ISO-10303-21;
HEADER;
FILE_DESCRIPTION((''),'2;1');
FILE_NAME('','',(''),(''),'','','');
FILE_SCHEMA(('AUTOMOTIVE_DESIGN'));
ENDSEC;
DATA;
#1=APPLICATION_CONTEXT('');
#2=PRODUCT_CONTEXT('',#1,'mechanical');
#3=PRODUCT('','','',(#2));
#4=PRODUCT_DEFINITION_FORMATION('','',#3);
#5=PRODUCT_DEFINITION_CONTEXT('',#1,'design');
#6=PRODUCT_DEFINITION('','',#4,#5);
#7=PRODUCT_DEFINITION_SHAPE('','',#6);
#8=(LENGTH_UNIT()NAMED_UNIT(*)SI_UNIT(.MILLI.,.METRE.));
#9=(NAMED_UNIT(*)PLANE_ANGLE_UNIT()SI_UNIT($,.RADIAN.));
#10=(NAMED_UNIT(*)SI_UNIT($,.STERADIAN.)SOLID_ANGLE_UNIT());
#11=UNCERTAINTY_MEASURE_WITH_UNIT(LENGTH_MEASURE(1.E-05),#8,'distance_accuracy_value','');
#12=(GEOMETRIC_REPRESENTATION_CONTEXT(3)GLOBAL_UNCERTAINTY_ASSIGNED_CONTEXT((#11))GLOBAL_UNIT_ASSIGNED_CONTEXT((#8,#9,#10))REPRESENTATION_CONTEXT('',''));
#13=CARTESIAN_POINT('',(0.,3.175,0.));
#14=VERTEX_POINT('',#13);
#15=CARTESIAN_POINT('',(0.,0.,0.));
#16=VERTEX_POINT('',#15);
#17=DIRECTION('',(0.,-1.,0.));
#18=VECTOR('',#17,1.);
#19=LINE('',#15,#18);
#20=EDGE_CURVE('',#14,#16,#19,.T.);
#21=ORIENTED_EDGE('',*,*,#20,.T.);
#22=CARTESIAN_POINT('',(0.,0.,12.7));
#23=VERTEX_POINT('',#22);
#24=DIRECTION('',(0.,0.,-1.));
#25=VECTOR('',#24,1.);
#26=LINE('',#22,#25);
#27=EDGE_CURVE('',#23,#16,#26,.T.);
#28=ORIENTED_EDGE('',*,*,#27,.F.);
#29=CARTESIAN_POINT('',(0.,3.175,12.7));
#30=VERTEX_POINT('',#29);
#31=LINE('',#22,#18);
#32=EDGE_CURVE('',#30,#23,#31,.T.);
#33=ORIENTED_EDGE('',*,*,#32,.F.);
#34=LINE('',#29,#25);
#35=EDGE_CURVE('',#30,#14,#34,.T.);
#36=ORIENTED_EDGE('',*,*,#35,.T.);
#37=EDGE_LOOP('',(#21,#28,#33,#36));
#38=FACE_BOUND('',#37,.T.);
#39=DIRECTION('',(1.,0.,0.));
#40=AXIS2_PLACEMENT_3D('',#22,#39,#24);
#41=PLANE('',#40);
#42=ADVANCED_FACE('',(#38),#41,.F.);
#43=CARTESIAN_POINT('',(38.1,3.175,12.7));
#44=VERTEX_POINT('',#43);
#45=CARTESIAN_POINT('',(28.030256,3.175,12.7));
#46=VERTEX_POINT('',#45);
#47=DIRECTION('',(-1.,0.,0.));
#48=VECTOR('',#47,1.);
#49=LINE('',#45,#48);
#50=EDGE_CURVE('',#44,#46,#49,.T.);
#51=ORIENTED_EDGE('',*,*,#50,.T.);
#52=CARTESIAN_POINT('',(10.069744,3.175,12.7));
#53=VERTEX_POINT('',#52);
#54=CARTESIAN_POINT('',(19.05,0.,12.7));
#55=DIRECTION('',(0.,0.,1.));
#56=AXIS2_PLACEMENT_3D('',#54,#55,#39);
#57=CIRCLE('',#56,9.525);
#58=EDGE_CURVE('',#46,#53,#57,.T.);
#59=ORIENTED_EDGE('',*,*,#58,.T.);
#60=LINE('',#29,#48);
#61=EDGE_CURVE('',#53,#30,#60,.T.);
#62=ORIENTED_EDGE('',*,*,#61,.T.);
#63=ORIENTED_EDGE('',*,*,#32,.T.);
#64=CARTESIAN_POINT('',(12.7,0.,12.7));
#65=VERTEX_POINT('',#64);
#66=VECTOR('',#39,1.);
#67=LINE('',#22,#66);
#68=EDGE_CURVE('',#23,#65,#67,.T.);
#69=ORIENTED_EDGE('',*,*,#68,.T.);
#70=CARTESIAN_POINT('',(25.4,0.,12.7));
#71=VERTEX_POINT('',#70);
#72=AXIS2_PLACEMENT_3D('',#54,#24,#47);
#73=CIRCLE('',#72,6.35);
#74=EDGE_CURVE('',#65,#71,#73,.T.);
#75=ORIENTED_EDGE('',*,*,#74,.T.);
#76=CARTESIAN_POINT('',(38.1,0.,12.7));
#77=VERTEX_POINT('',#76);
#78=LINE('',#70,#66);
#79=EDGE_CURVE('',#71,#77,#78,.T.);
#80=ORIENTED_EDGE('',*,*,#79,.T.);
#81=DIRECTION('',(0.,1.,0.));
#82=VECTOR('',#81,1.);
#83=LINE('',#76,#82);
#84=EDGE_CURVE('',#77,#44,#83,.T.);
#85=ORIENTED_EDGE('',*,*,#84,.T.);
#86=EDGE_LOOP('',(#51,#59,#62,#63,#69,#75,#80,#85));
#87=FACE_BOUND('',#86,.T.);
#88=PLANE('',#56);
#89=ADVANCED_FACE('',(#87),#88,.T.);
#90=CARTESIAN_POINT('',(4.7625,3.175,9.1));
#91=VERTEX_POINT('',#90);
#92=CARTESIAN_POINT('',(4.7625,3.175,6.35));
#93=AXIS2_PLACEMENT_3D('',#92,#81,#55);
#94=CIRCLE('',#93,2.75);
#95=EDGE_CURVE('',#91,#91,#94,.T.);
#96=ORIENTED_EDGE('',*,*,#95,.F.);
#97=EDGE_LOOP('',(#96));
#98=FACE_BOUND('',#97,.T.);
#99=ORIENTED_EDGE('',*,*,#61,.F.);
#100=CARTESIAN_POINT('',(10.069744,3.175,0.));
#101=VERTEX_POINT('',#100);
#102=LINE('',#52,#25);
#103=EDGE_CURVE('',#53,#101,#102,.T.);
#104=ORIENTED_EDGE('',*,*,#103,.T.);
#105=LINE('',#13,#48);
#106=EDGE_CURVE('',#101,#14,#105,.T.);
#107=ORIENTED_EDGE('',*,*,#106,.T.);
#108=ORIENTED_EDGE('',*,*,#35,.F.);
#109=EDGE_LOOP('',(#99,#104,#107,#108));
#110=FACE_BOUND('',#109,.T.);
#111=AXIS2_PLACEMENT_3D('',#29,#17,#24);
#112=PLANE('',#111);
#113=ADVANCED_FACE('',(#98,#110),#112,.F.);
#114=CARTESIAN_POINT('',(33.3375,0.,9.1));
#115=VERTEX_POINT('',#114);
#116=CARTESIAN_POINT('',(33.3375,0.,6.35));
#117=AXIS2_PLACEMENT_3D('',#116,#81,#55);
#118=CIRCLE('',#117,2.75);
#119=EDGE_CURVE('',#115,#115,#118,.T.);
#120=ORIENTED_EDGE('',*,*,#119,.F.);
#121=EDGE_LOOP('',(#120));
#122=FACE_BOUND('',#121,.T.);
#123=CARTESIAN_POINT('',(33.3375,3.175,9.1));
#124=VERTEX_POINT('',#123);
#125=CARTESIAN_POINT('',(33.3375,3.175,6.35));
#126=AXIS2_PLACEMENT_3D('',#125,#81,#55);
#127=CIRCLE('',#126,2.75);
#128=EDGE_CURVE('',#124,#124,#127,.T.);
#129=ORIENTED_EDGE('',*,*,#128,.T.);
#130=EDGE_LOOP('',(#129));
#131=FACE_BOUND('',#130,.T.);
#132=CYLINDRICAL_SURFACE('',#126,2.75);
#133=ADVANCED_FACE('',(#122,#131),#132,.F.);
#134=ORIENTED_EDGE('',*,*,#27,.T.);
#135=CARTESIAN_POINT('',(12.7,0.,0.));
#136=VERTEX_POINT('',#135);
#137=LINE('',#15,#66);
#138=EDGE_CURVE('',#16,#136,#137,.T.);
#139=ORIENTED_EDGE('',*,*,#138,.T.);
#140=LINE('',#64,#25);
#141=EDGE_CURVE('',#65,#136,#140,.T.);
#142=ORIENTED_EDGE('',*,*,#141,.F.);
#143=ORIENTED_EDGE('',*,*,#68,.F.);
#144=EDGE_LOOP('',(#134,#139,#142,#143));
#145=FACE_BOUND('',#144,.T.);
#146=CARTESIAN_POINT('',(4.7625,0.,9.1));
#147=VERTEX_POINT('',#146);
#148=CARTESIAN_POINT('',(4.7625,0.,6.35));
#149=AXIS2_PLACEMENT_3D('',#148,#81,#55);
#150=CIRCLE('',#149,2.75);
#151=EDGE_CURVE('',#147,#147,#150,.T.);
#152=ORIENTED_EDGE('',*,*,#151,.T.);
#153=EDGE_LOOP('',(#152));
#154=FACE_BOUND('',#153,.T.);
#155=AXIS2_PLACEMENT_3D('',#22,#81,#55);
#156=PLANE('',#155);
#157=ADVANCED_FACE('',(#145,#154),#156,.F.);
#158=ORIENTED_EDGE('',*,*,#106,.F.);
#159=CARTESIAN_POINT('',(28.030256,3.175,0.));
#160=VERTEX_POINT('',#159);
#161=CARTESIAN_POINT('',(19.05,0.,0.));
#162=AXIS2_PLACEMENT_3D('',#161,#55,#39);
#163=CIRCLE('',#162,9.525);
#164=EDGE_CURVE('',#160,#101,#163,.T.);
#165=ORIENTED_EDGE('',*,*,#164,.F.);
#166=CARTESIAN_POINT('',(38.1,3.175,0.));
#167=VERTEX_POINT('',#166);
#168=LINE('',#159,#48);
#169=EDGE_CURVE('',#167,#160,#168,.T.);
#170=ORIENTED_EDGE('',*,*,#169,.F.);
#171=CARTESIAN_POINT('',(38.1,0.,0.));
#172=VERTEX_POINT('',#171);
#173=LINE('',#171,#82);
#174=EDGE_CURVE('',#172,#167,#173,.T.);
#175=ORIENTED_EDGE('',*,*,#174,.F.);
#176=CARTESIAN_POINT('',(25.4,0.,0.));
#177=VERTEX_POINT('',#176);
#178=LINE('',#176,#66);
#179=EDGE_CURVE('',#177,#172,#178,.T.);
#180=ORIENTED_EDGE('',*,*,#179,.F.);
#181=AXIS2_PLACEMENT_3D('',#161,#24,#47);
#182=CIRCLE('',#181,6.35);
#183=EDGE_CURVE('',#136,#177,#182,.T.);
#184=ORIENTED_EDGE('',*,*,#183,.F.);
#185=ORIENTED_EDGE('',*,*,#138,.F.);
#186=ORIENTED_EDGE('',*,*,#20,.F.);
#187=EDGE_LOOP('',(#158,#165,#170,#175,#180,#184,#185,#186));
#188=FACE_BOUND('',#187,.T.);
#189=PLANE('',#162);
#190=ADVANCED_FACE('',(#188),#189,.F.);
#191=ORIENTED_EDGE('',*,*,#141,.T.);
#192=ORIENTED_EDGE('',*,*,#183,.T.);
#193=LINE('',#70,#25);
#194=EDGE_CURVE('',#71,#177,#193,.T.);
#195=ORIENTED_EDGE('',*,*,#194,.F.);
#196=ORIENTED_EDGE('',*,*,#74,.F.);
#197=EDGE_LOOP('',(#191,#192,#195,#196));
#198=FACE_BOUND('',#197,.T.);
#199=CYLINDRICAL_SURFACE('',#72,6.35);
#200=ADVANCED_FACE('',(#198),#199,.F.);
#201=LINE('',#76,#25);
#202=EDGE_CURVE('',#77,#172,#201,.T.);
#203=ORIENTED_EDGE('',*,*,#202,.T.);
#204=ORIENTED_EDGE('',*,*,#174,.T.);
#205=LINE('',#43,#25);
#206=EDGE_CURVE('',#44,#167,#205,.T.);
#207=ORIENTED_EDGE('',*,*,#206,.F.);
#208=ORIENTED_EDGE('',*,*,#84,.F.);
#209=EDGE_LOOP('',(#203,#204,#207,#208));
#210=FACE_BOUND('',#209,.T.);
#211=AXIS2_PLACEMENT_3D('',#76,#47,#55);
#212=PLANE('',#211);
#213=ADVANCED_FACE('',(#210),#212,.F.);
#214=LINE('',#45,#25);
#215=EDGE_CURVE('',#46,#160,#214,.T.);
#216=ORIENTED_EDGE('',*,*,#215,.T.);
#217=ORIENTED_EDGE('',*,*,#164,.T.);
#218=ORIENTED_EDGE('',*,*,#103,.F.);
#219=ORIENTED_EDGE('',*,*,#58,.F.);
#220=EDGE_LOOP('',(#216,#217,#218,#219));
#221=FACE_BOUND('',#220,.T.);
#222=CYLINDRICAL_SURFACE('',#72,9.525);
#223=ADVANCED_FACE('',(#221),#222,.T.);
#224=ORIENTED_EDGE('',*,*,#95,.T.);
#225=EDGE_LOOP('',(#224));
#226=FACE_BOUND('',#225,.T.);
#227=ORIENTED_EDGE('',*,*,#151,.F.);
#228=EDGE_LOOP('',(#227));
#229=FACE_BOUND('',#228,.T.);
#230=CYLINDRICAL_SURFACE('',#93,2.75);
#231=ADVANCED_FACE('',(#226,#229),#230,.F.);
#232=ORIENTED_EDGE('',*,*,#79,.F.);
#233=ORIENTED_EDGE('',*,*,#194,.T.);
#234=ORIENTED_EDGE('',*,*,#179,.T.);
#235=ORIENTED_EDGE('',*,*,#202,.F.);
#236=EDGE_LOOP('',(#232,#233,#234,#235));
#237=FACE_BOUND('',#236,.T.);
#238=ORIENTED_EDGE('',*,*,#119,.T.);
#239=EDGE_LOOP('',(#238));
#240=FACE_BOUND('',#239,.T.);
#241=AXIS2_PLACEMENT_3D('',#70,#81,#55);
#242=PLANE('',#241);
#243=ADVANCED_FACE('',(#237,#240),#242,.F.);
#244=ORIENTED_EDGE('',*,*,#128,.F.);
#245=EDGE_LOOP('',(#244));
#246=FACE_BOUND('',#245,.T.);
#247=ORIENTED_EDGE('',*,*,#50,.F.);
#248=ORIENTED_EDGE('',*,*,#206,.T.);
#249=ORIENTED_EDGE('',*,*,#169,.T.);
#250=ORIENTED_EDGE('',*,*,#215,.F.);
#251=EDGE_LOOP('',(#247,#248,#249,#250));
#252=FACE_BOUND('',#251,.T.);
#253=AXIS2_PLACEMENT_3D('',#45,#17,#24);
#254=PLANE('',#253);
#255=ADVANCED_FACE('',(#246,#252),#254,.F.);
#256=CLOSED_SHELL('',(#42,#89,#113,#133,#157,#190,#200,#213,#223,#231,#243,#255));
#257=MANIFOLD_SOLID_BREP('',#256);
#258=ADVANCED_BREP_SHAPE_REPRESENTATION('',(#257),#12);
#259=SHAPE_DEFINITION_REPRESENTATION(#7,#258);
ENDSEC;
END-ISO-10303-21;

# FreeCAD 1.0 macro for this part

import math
import FreeCAD as App
import Part
import Sketcher
Q = App.Units.Quantity

doc = App.newDocument("Part")
body = doc.addObject("PartDesign::Body", "Body")

sketch1 = body.newObject("Sketcher::SketchObject", "Sketch")
sketch1.AttachmentSupport = (doc.getObject("XY_Plane"), [""])
sketch1.MapMode = "FlatFace"
sketch1.addGeometry([
    Part.LineSegment(App.Vector(25.4, 0, 0), App.Vector(38.1, 0, 0)),
    Part.LineSegment(App.Vector(38.1, 0, 0), App.Vector(38.1, 3.2, 0)),
    Part.LineSegment(App.Vector(38.1, 3.2, 0), App.Vector(28, 3.2, 0)),
    Part.ArcOfCircle(Part.Circle(App.Vector(19.1, 0, 0), App.Vector(0, 0, 1), 9.5), math.radians(19), math.radians(161)),
    Part.LineSegment(App.Vector(10.1, 3.2, 0), App.Vector(0, 3.2, 0)),
    Part.LineSegment(App.Vector(0, 3.2, 0), App.Vector(0, 0, 0)),
    Part.LineSegment(App.Vector(0, 0, 0), App.Vector(12.7, 0, 0)),
    Part.ArcOfCircle(Part.Circle(App.Vector(19.1, 0, 0), App.Vector(0, 0, 1), 6.3), math.radians(0), math.radians(180)),
], False)
sketch1.addConstraint([
    Sketcher.Constraint("Coincident", 0, 2, 1, 1),
    Sketcher.Constraint("Coincident", 1, 2, 2, 1),
    Sketcher.Constraint("Coincident", 2, 2, 3, 1),
    Sketcher.Constraint("Coincident", 3, 2, 4, 1),
    Sketcher.Constraint("Coincident", 4, 2, 5, 1),
    Sketcher.Constraint("Coincident", 5, 2, 6, 1),
    Sketcher.Constraint("Coincident", 6, 2, 7, 2),
    Sketcher.Constraint("Coincident", 7, 1, 0, 1),
    Sketcher.Constraint("Horizontal", 0),
    Sketcher.Constraint("Vertical", 1),
    Sketcher.Constraint("Horizontal", 2),
    Sketcher.Constraint("Horizontal", 4),
    Sketcher.Constraint("Vertical", 5),
    Sketcher.Constraint("Horizontal", 6),
    Sketcher.Constraint("Coincident", 5, 2, -1, 1),
    Sketcher.Constraint("Coincident", 7, 3, 3, 3),
    Sketcher.Constraint("PointOnObject", 3, 3, -1),
    Sketcher.Constraint("PointOnObject", 0, 2, -1),
    Sketcher.Constraint("Horizontal", 2, 2, 3, 2),
    Sketcher.Constraint("Equal", 2, 4),
    Sketcher.Constraint("Radius", 7, Q("0.25 in")),
    Sketcher.Constraint("DistanceX", 0, 1, 0, 2, Q("0.5 in")),
    Sketcher.Constraint("Radius", 3, Q("0.375 in")),
    Sketcher.Constraint("DistanceY", 1, 1, 1, 2, Q("0.125 in")),
])
pad1 = body.newObject("PartDesign::Pad", "Pad")
pad1.Profile = sketch1
pad1.Length = Q("0.5 in")

sketch2 = body.newObject("Sketcher::SketchObject", "Sketch001")
sketch2.AttachmentSupport = (doc.getObject("XZ_Plane"), [""])
sketch2.MapMode = "FlatFace"
sketch2.AttachmentOffset = App.Placement(App.Vector(0, 0, -0.125 * 25.4), App.Rotation())
sketch2.addGeometry([
    Part.Circle(App.Vector(4.8, 6.3, 0), App.Vector(0, 0, 1), 2.8),
    Part.Circle(App.Vector(33.3, 6.3, 0), App.Vector(0, 0, 1), 2.8),
], False)
sketch2.addConstraint([
    Sketcher.Constraint("Equal", 0, 1),
    Sketcher.Constraint("Horizontal", 0, 3, 1, 3),
    Sketcher.Constraint("Diameter", 0, Q("5.5 mm")),
    Sketcher.Constraint("DistanceY", -1, 1, 0, 3, Q("0.25 in")),
    Sketcher.Constraint("DistanceX", -1, 1, 0, 3, Q("0.1875 in")),
    Sketcher.Constraint("DistanceX", -1, 1, 1, 3, Q("1.3125 in")),
])
doc.recompute()
hole = body.newObject("PartDesign::Hole", "Hole")
hole.Profile = sketch2
hole.ThreadType = "None"
hole.Diameter = 5.5
hole.DepthType = "ThroughAll"
hole.Reversed = True

doc.recompute()
